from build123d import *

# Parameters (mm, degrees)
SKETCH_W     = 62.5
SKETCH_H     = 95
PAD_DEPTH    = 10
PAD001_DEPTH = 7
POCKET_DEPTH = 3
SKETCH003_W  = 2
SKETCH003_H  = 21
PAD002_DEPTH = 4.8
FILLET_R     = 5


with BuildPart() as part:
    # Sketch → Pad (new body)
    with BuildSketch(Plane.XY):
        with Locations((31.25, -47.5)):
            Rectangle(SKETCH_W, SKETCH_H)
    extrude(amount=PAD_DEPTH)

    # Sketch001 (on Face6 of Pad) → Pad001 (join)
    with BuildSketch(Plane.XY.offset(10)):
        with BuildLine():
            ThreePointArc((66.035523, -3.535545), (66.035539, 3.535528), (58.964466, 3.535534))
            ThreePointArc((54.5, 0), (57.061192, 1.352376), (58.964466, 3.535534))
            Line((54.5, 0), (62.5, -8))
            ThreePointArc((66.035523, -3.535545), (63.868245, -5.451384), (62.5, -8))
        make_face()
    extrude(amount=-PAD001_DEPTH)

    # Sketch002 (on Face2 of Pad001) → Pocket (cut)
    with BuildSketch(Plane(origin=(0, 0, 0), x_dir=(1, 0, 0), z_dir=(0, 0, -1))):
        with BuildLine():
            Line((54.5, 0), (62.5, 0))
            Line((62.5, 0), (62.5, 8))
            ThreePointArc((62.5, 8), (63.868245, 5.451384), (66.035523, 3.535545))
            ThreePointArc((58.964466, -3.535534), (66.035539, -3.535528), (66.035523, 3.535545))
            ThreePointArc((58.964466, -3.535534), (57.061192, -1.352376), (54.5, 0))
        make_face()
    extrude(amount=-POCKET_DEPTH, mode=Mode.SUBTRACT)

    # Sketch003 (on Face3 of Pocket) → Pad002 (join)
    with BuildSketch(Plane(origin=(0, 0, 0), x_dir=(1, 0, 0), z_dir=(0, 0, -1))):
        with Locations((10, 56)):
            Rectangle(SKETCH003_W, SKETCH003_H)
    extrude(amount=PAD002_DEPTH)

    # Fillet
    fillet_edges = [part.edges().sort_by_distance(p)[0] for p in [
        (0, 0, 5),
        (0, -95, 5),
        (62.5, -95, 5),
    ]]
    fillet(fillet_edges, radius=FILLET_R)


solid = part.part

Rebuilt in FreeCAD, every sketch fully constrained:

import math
import FreeCAD as App
import Part
import Sketcher

V = App.Vector
Q = App.Units.Quantity


def edges_at(feature, points):
    """Names of the edges that pass closest to the given points."""
    edges = feature.Shape.Edges
    near = lambda p: min(range(len(edges)), key=lambda i: edges[i].distToShape(Part.Vertex(*p))[0])
    return sorted({f"Edge{near(p) + 1}" for p in points})

doc = App.newDocument("Part")
body = doc.addObject("PartDesign::Body", "Body")

sketch1 = doc.addObject("Sketcher::SketchObject", "Sketch")
body.addObject(sketch1)
sketch1.AttachmentSupport = (doc.XY_Plane, [""])
sketch1.MapMode = "FlatFace"
sketch1.addGeometry(Part.LineSegment(V(0, 0, 0), V(0, -95, 0)), False)
sketch1.addGeometry(Part.LineSegment(V(0, -95, 0), V(62, -95, 0)), False)
sketch1.addGeometry(Part.LineSegment(V(62, -95, 0), V(62, 0, 0)), False)
sketch1.addGeometry(Part.LineSegment(V(62, 0, 0), V(0, 0, 0)), False)
sketch1.addConstraint(Sketcher.Constraint("Coincident", 0, 2, 1, 1))
sketch1.addConstraint(Sketcher.Constraint("Coincident", 1, 2, 2, 1))
sketch1.addConstraint(Sketcher.Constraint("Coincident", 2, 2, 3, 1))
sketch1.addConstraint(Sketcher.Constraint("Coincident", 3, 2, 0, 1))
sketch1.addConstraint(Sketcher.Constraint("Vertical", 0))
sketch1.addConstraint(Sketcher.Constraint("Horizontal", 1))
sketch1.addConstraint(Sketcher.Constraint("Vertical", 2))
sketch1.addConstraint(Sketcher.Constraint("Horizontal", 3))
sketch1.addConstraint(Sketcher.Constraint("Coincident", 3, 2, -1, 1))
sketch1.addConstraint(Sketcher.Constraint("DistanceY", 0, 2, 0, 1, 95.0))
sketch1.addConstraint(Sketcher.Constraint("DistanceX", 1, 1, 1, 2, 62.5))
pad1 = doc.addObject("PartDesign::Pad", "Pad")
body.addObject(pad1)
pad1.Profile = sketch1
pad1.Length = 10

sketch2 = doc.addObject("Sketcher::SketchObject", "Sketch001")
body.addObject(sketch2)
sketch2.AttachmentSupport = (doc.XY_Plane, [""])
sketch2.MapMode = "FlatFace"
sketch2.AttachmentOffset = App.Placement(V(0, 0, 10), App.Rotation())
sketch2.addGeometry(Part.ArcOfCircle(Part.Circle(V(62, 0, 0), V(0, 0, 1), 5), math.radians(-45), math.radians(135)), False)
sketch2.addGeometry(Part.ArcOfCircle(Part.Circle(V(52, 8, 0), V(0, 0, 1), 8), math.radians(-73), math.radians(-31)), False)
sketch2.addGeometry(Part.LineSegment(V(54, 0, 0), V(62, -8, 0)), False)
sketch2.addGeometry(Part.ArcOfCircle(Part.Circle(V(70, -11, 0), V(0, 0, 1), 8), math.radians(121), math.radians(162)), False)
sketch2.addConstraint(Sketcher.Constraint("Coincident", 0, 2, 1, 2))
sketch2.addConstraint(Sketcher.Constraint("Coincident", 1, 1, 2, 1))
sketch2.addConstraint(Sketcher.Constraint("Coincident", 2, 2, 3, 2))
sketch2.addConstraint(Sketcher.Constraint("Coincident", 3, 1, 0, 1))
sketch2.addConstraint(Sketcher.Constraint("PointOnObject", 0, 3, -1))
sketch2.addConstraint(Sketcher.Constraint("PointOnObject", 1, 1, -1))
sketch2.addConstraint(Sketcher.Constraint("Vertical", 0, 3, 2, 2))
sketch2.addConstraint(Sketcher.Constraint("Radius", 0, 5.0))
sketch2.addConstraint(Sketcher.Constraint("Angle", 2, Q("-45 deg")))
sketch2.addConstraint(Sketcher.Constraint("DistanceY", 2, 2, -1, 1, 8.0))
sketch2.addConstraint(Sketcher.Constraint("DistanceX", -1, 1, 0, 3, 62.5))
sketch2.addConstraint(Sketcher.Constraint("Radius", 1, 7.915721))
sketch2.addConstraint(Sketcher.Constraint("Radius", 3, 8.209542))
sketch2.addConstraint(Sketcher.Constraint("DistanceY", 3, 3, -1, 1, 10.548102))
sketch2.addConstraint(Sketcher.Constraint("DistanceX", 1, 3, 3, 3, 18.157201))
pad2 = doc.addObject("PartDesign::Pad", "Pad001")
body.addObject(pad2)
pad2.Profile = sketch2
pad2.Length = 7
pad2.Reversed = True

sketch3 = doc.addObject("Sketcher::SketchObject", "Sketch002")
body.addObject(sketch3)
sketch3.AttachmentSupport = (doc.XY_Plane, [""])
sketch3.MapMode = "FlatFace"
sketch3.addGeometry(Part.LineSegment(V(62, 0, 0), V(54, 0, 0)), False)
sketch3.addGeometry(Part.ArcOfCircle(Part.Circle(V(52, 8, 0), V(0, 0, 1), 8), math.radians(-73), math.radians(-31)), False)
sketch3.addGeometry(Part.ArcOfCircle(Part.Circle(V(62, 0, 0), V(0, 0, 1), 5), math.radians(-45), math.radians(135)), False)
sketch3.addGeometry(Part.ArcOfCircle(Part.Circle(V(70, -11, 0), V(0, 0, 1), 8), math.radians(121), math.radians(162)), False)
sketch3.addGeometry(Part.LineSegment(V(62, -8, 0), V(62, 0, 0)), False)
sketch3.addConstraint(Sketcher.Constraint("Coincident", 0, 2, 1, 1))
sketch3.addConstraint(Sketcher.Constraint("Coincident", 1, 2, 2, 2))
sketch3.addConstraint(Sketcher.Constraint("Coincident", 2, 1, 3, 1))
sketch3.addConstraint(Sketcher.Constraint("Coincident", 3, 2, 4, 1))
sketch3.addConstraint(Sketcher.Constraint("Coincident", 4, 2, 0, 1))
sketch3.addConstraint(Sketcher.Constraint("Horizontal", 0))
sketch3.addConstraint(Sketcher.Constraint("Vertical", 4))
sketch3.addConstraint(Sketcher.Constraint("Coincident", 4, 2, 2, 3))
sketch3.addConstraint(Sketcher.Constraint("PointOnObject", 2, 3, -1))
sketch3.addConstraint(Sketcher.Constraint("Equal", 0, 4))
sketch3.addConstraint(Sketcher.Constraint("Radius", 2, 5.0))
sketch3.addConstraint(Sketcher.Constraint("DistanceX", 0, 2, 0, 1, 8.0))
sketch3.addConstraint(Sketcher.Constraint("DistanceX", -1, 1, 2, 3, 62.5))
sketch3.addConstraint(Sketcher.Constraint("Radius", 1, 7.915721))
sketch3.addConstraint(Sketcher.Constraint("Radius", 3, 8.209542))
sketch3.addConstraint(Sketcher.Constraint("DistanceY", 3, 3, -1, 1, 10.548102))
sketch3.addConstraint(Sketcher.Constraint("DistanceX", 1, 3, 3, 3, 18.157201))
pocket1 = doc.addObject("PartDesign::Pocket", "Pocket")
body.addObject(pocket1)
pocket1.Profile = sketch3
pocket1.Length = 3
pocket1.Reversed = True

sketch4 = doc.addObject("Sketcher::SketchObject", "Sketch003")
body.addObject(sketch4)
sketch4.AttachmentSupport = (doc.XY_Plane, [""])
sketch4.MapMode = "FlatFace"
sketch4.addGeometry(Part.LineSegment(V(9, -66.5, 0), V(9, -45.5, 0)), False)
sketch4.addGeometry(Part.LineSegment(V(9, -45.5, 0), V(11, -45.5, 0)), False)
sketch4.addGeometry(Part.LineSegment(V(11, -45.5, 0), V(11, -66.5, 0)), False)
sketch4.addGeometry(Part.LineSegment(V(11, -66.5, 0), V(9, -66.5, 0)), False)
sketch4.addConstraint(Sketcher.Constraint("Coincident", 0, 2, 1, 1))
sketch4.addConstraint(Sketcher.Constraint("Coincident", 1, 2, 2, 1))
sketch4.addConstraint(Sketcher.Constraint("Coincident", 2, 2, 3, 1))
sketch4.addConstraint(Sketcher.Constraint("Coincident", 3, 2, 0, 1))
sketch4.addConstraint(Sketcher.Constraint("Vertical", 0))
sketch4.addConstraint(Sketcher.Constraint("Horizontal", 1))
sketch4.addConstraint(Sketcher.Constraint("Vertical", 2))
sketch4.addConstraint(Sketcher.Constraint("Horizontal", 3))
sketch4.addConstraint(Sketcher.Constraint("DistanceX", 1, 1, 1, 2, 2.0))
sketch4.addConstraint(Sketcher.Constraint("DistanceY", 0, 1, 0, 2, 21.0))
sketch4.addConstraint(Sketcher.Constraint("DistanceX", -1, 1, 0, 2, 9.0))
sketch4.addConstraint(Sketcher.Constraint("DistanceY", 0, 2, -1, 1, 45.5))
pad3 = doc.addObject("PartDesign::Pad", "Pad002")
body.addObject(pad3)
pad3.Profile = sketch4
pad3.Length = 4.8
pad3.Reversed = True
doc.recompute()

fillet = doc.addObject("PartDesign::Fillet", "Fillet")
body.addObject(fillet)
fillet.Base = (pad3, edges_at(pad3, [(0, 0, 5), (0, -95, 5), (62.5, -95, 5)]))
fillet.Radius = 5

doc.recompute()
